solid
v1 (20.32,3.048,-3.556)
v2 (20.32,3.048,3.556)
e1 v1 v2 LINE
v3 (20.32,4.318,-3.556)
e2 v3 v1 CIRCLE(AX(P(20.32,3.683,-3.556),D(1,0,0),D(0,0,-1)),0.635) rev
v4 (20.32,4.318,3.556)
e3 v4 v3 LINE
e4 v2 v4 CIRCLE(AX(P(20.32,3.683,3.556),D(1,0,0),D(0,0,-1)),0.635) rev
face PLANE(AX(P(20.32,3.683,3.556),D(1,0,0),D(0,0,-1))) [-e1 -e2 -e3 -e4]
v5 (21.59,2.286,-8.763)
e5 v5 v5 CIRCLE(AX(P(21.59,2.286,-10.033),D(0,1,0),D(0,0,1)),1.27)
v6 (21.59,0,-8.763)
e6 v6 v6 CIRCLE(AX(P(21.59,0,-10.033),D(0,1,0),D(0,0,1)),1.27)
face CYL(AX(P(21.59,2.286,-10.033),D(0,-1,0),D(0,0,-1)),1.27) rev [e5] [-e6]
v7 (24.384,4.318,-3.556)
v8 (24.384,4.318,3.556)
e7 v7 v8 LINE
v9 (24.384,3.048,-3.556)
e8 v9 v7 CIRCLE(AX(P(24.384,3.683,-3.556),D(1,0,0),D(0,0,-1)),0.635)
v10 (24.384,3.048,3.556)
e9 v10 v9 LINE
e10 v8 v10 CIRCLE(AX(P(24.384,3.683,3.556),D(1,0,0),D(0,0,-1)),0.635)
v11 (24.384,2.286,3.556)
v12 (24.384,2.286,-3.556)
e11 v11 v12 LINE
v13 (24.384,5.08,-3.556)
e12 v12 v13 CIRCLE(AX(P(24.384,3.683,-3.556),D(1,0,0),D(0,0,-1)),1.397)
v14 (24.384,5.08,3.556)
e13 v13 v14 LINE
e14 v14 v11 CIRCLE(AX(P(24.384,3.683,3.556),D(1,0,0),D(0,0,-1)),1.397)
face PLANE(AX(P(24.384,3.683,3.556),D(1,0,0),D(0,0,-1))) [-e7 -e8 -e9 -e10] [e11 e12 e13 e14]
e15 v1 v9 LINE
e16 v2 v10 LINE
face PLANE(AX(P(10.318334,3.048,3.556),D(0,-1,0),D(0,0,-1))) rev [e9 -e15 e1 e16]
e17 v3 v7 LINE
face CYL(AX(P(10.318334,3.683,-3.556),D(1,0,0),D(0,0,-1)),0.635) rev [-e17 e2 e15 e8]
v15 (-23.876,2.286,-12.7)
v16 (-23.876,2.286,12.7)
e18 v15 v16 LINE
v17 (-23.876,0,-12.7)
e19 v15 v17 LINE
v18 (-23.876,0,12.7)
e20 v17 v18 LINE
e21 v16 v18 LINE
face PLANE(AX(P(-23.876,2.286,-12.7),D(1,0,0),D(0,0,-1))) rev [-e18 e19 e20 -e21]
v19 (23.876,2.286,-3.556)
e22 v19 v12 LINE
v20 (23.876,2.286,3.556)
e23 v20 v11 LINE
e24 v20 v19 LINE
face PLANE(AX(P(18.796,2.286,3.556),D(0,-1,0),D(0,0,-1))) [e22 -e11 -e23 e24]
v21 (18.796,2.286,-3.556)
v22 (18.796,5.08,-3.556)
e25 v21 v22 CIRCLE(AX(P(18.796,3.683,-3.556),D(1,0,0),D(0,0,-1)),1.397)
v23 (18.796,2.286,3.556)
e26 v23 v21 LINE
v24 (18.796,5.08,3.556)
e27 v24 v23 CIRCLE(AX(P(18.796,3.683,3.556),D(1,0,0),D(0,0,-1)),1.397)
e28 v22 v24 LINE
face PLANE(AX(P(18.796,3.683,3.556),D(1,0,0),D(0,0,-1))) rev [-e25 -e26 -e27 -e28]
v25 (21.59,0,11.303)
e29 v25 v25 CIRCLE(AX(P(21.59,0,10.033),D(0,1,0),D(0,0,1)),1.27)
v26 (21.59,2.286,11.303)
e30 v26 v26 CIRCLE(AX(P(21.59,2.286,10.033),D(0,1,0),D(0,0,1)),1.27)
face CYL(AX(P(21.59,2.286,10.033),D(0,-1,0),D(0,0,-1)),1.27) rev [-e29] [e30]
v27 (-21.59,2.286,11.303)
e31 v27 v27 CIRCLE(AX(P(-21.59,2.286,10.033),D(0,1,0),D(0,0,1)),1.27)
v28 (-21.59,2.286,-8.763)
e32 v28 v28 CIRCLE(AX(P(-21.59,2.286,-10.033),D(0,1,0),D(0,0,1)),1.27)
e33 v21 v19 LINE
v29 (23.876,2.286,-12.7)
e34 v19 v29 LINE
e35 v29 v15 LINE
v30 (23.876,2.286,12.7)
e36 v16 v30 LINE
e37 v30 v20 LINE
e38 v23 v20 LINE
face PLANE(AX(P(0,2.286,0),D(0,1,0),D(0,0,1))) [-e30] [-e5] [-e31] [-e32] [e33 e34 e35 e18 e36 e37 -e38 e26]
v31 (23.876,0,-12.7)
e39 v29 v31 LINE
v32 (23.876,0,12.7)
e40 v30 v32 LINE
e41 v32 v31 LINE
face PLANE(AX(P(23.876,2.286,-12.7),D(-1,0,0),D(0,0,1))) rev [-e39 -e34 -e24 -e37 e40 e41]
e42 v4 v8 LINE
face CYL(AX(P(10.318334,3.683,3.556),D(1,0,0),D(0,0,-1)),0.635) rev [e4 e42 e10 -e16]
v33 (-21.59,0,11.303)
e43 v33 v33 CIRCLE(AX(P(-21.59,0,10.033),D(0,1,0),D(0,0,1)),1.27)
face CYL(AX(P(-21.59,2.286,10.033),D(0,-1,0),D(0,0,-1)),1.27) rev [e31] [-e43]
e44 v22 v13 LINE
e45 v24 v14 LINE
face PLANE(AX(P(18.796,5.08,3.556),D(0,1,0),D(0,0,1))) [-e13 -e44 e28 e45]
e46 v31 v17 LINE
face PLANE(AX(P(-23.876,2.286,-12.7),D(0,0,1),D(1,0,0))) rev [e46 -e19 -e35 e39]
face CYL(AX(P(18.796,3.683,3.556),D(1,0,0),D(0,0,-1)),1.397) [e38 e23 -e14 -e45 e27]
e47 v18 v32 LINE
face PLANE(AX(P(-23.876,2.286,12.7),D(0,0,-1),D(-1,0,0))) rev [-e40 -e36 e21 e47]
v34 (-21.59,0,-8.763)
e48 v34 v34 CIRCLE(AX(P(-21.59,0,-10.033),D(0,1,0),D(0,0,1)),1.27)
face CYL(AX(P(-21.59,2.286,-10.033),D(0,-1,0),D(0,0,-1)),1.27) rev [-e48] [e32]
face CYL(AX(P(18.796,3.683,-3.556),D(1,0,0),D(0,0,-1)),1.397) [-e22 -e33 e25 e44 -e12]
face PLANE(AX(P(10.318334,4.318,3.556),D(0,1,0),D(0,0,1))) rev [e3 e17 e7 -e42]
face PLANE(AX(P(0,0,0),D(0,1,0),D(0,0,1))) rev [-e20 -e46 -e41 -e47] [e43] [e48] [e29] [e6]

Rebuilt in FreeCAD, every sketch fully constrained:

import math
import FreeCAD as App
import Part
import Sketcher
Q = App.Units.Quantity


def add_polygon(sketch, points):
    """Adds a closed chain of lines whose ends are joined by coincident constraints."""
    first, n = sketch.GeometryCount, len(points)
    for a, b in zip(points, points[1:] + points[:1]):
        sketch.addGeometry(Part.LineSegment(App.Vector(*a, 0), App.Vector(*b, 0)), False)
    for i in range(n):
        sketch.addConstraint(Sketcher.Constraint("Coincident", first + i, 2, first + (i + 1) % n, 1))

doc = App.newDocument("Part")
params = doc.addObject("Spreadsheet::Sheet", "Params")
for row, (alias, value) in enumerate([
    ("sketch1_diameter", "0.1 in"),
    ("sketch1_height", "1 in"),
    ("sketch1_width", "1.88 in"),
    ("pad1_length", "0.09 in"),
    ("sketch2_radius", "0.055 in"),
    ("sketch2_height", "0.28 in"),
    ("pad2_length", "0.02 in"),
    ("pad2_length2", "0.2 in"),
    ("sketch3_radius", "0.025 in"),
    ("sketch3_height", "0.28 in"),
    ("pocket1_length", "0.16 in"),
], start=1):
    params.set(f"A{row}", alias)
    params.set(f"B{row}", "=" + value)
    params.setAlias(f"B{row}", alias)

body = doc.addObject("PartDesign::Body", "Body")

sketch1 = body.newObject("Sketcher::SketchObject", "Sketch")
sketch1.AttachmentSupport = (doc.getObject("XZ_Plane"), [""])
sketch1.MapMode = "FlatFace"
add_polygon(sketch1, [(-23.9, -12.7), (-23.9, 12.7), (23.9, 12.7), (23.9, -12.7)])
sketch1.addGeometry(Part.Circle(App.Vector(-21.6, 10, 0), App.Vector(0, 0, 1), 1.3), False)
sketch1.addGeometry(Part.Circle(App.Vector(21.6, 10, 0), App.Vector(0, 0, 1), 1.3), False)
sketch1.addGeometry(Part.Circle(App.Vector(-21.6, -10, 0), App.Vector(0, 0, 1), 1.3), False)
sketch1.addGeometry(Part.Circle(App.Vector(21.6, -10, 0), App.Vector(0, 0, 1), 1.3), False)
sketch1.addConstraint(Sketcher.Constraint("Vertical", 0))
sketch1.addConstraint(Sketcher.Constraint("Horizontal", 1))
sketch1.addConstraint(Sketcher.Constraint("Vertical", 2))
sketch1.addConstraint(Sketcher.Constraint("Horizontal", 3))
sketch1.addConstraint(Sketcher.Constraint("Equal", 4, 5))
sketch1.addConstraint(Sketcher.Constraint("Equal", 5, 6))
sketch1.addConstraint(Sketcher.Constraint("Equal", 6, 7))
sketch1.addConstraint(Sketcher.Constraint("Symmetric", 5, 3, 6, 3, -1, 1))
sketch1.addConstraint(Sketcher.Constraint("Symmetric", 4, 3, 7, 3, -1, 1))
sketch1.addConstraint(Sketcher.Constraint("Symmetric", 0, 2, 2, 2, -1, 1))
sketch1.addConstraint(Sketcher.Constraint("Symmetric", 4, 3, 5, 3, -2))
sketch1.addConstraint(Sketcher.Constraint("Diameter", 4, Q("0.1 in")))
sketch1.addConstraint(Sketcher.Constraint("DistanceY", 0, 1, 0, 2, Q("1 in")))
sketch1.addConstraint(Sketcher.Constraint("DistanceX", 1, 1, 1, 2, Q("1.88 in")))
sketch1.addConstraint(Sketcher.Constraint("DistanceX", 4, 3, 5, 3, Q("1.7 in")))
sketch1.addConstraint(Sketcher.Constraint("DistanceY", 6, 3, 4, 3, Q("0.79 in")))
sketch1.setExpression("Constraints[15]", "Params.sketch1_diameter")
sketch1.setExpression("Constraints[16]", "Params.sketch1_height")
sketch1.setExpression("Constraints[17]", "Params.sketch1_width")
pad1 = body.newObject("PartDesign::Pad", "Pad")
pad1.Profile = sketch1
pad1.setExpression("Length", "Params.pad1_length")
pad1.Reversed = True

sketch2 = body.newObject("Sketcher::SketchObject", "Sketch001")
sketch2.AttachmentSupport = (doc.getObject("YZ_Plane"), [""])
sketch2.MapMode = "FlatFace"
sketch2.AttachmentOffset = App.Placement(App.Vector(0, 0, 0.94 * 25.4), App.Rotation())
sketch2.addGeometry(Part.LineSegment(App.Vector(5.1, -3.6, 0), App.Vector(5.1, 3.6, 0)), False)
sketch2.addGeometry(Part.ArcOfCircle(Part.Circle(App.Vector(3.7, 3.6, 0), App.Vector(0, 0, 1), 1.4), math.radians(0), math.radians(180)), False)
sketch2.addGeometry(Part.LineSegment(App.Vector(2.3, 3.6, 0), App.Vector(2.3, -3.6, 0)), False)
sketch2.addGeometry(Part.ArcOfCircle(Part.Circle(App.Vector(3.7, -3.6, 0), App.Vector(0, 0, 1), 1.4), math.radians(180), math.radians(360)), False)
sketch2.addConstraint(Sketcher.Constraint("Tangent", 0, 2, 1, 1))
sketch2.addConstraint(Sketcher.Constraint("Tangent", 1, 2, 2, 1))
sketch2.addConstraint(Sketcher.Constraint("Tangent", 2, 2, 3, 1))
sketch2.addConstraint(Sketcher.Constraint("Tangent", 3, 2, 0, 1))
sketch2.addConstraint(Sketcher.Constraint("Vertical", 0))
sketch2.addConstraint(Sketcher.Constraint("Vertical", 2))
sketch2.addConstraint(Sketcher.Constraint("Radius", 1, Q("0.055 in")))
sketch2.addConstraint(Sketcher.Constraint("DistanceY", 0, 1, 0, 2, Q("0.28 in")))
sketch2.addConstraint(Sketcher.Constraint("DistanceX", -1, 1, 0, 2, Q("0.2 in")))
sketch2.addConstraint(Sketcher.Constraint("DistanceY", -1, 1, 1, 3, Q("0.14 in")))
sketch2.setExpression("Constraints[6]", "Params.sketch2_radius")
sketch2.setExpression("Constraints[7]", "Params.sketch2_height")
pad2 = body.newObject("PartDesign::Pad", "Pad001")
pad2.Profile = sketch2
pad2.Type = "TwoLengths"
pad2.setExpression("Length", "Params.pad2_length")
pad2.setExpression("Length2", "Params.pad2_length2")

sketch3 = body.newObject("Sketcher::SketchObject", "Sketch002")
sketch3.AttachmentSupport = (doc.getObject("YZ_Plane"), [""])
sketch3.MapMode = "FlatFace"
sketch3.AttachmentOffset = App.Placement(App.Vector(0, 0, 0.96 * 25.4), App.Rotation())
sketch3.addGeometry(Part.LineSegment(App.Vector(4.3, -3.6, 0), App.Vector(4.3, 3.6, 0)), False)
sketch3.addGeometry(Part.ArcOfCircle(Part.Circle(App.Vector(3.7, 3.6, 0), App.Vector(0, 0, 1), 0.6), math.radians(0), math.radians(180)), False)
sketch3.addGeometry(Part.LineSegment(App.Vector(3, 3.6, 0), App.Vector(3, -3.6, 0)), False)
sketch3.addGeometry(Part.ArcOfCircle(Part.Circle(App.Vector(3.7, -3.6, 0), App.Vector(0, 0, 1), 0.6), math.radians(180), math.radians(360)), False)
sketch3.addConstraint(Sketcher.Constraint("Tangent", 0, 2, 1, 1))
sketch3.addConstraint(Sketcher.Constraint("Tangent", 1, 2, 2, 1))
sketch3.addConstraint(Sketcher.Constraint("Tangent", 2, 2, 3, 1))
sketch3.addConstraint(Sketcher.Constraint("Tangent", 3, 2, 0, 1))
sketch3.addConstraint(Sketcher.Constraint("Vertical", 0))
sketch3.addConstraint(Sketcher.Constraint("Vertical", 2))
sketch3.addConstraint(Sketcher.Constraint("Radius", 1, Q("0.025 in")))
sketch3.addConstraint(Sketcher.Constraint("DistanceY", 0, 1, 0, 2, Q("0.28 in")))
sketch3.addConstraint(Sketcher.Constraint("DistanceY", -1, 1, 1, 3, Q("0.14 in")))
sketch3.addConstraint(Sketcher.Constraint("DistanceX", -1, 1, 0, 2, Q("0.17 in")))
sketch3.setExpression("Constraints[6]", "Params.sketch3_radius")
sketch3.setExpression("Constraints[7]", "Params.sketch3_height")
pocket1 = body.newObject("PartDesign::Pocket", "Pocket")
pocket1.Profile = sketch3
pocket1.setExpression("Length", "Params.pocket1_length")

doc.recompute()
